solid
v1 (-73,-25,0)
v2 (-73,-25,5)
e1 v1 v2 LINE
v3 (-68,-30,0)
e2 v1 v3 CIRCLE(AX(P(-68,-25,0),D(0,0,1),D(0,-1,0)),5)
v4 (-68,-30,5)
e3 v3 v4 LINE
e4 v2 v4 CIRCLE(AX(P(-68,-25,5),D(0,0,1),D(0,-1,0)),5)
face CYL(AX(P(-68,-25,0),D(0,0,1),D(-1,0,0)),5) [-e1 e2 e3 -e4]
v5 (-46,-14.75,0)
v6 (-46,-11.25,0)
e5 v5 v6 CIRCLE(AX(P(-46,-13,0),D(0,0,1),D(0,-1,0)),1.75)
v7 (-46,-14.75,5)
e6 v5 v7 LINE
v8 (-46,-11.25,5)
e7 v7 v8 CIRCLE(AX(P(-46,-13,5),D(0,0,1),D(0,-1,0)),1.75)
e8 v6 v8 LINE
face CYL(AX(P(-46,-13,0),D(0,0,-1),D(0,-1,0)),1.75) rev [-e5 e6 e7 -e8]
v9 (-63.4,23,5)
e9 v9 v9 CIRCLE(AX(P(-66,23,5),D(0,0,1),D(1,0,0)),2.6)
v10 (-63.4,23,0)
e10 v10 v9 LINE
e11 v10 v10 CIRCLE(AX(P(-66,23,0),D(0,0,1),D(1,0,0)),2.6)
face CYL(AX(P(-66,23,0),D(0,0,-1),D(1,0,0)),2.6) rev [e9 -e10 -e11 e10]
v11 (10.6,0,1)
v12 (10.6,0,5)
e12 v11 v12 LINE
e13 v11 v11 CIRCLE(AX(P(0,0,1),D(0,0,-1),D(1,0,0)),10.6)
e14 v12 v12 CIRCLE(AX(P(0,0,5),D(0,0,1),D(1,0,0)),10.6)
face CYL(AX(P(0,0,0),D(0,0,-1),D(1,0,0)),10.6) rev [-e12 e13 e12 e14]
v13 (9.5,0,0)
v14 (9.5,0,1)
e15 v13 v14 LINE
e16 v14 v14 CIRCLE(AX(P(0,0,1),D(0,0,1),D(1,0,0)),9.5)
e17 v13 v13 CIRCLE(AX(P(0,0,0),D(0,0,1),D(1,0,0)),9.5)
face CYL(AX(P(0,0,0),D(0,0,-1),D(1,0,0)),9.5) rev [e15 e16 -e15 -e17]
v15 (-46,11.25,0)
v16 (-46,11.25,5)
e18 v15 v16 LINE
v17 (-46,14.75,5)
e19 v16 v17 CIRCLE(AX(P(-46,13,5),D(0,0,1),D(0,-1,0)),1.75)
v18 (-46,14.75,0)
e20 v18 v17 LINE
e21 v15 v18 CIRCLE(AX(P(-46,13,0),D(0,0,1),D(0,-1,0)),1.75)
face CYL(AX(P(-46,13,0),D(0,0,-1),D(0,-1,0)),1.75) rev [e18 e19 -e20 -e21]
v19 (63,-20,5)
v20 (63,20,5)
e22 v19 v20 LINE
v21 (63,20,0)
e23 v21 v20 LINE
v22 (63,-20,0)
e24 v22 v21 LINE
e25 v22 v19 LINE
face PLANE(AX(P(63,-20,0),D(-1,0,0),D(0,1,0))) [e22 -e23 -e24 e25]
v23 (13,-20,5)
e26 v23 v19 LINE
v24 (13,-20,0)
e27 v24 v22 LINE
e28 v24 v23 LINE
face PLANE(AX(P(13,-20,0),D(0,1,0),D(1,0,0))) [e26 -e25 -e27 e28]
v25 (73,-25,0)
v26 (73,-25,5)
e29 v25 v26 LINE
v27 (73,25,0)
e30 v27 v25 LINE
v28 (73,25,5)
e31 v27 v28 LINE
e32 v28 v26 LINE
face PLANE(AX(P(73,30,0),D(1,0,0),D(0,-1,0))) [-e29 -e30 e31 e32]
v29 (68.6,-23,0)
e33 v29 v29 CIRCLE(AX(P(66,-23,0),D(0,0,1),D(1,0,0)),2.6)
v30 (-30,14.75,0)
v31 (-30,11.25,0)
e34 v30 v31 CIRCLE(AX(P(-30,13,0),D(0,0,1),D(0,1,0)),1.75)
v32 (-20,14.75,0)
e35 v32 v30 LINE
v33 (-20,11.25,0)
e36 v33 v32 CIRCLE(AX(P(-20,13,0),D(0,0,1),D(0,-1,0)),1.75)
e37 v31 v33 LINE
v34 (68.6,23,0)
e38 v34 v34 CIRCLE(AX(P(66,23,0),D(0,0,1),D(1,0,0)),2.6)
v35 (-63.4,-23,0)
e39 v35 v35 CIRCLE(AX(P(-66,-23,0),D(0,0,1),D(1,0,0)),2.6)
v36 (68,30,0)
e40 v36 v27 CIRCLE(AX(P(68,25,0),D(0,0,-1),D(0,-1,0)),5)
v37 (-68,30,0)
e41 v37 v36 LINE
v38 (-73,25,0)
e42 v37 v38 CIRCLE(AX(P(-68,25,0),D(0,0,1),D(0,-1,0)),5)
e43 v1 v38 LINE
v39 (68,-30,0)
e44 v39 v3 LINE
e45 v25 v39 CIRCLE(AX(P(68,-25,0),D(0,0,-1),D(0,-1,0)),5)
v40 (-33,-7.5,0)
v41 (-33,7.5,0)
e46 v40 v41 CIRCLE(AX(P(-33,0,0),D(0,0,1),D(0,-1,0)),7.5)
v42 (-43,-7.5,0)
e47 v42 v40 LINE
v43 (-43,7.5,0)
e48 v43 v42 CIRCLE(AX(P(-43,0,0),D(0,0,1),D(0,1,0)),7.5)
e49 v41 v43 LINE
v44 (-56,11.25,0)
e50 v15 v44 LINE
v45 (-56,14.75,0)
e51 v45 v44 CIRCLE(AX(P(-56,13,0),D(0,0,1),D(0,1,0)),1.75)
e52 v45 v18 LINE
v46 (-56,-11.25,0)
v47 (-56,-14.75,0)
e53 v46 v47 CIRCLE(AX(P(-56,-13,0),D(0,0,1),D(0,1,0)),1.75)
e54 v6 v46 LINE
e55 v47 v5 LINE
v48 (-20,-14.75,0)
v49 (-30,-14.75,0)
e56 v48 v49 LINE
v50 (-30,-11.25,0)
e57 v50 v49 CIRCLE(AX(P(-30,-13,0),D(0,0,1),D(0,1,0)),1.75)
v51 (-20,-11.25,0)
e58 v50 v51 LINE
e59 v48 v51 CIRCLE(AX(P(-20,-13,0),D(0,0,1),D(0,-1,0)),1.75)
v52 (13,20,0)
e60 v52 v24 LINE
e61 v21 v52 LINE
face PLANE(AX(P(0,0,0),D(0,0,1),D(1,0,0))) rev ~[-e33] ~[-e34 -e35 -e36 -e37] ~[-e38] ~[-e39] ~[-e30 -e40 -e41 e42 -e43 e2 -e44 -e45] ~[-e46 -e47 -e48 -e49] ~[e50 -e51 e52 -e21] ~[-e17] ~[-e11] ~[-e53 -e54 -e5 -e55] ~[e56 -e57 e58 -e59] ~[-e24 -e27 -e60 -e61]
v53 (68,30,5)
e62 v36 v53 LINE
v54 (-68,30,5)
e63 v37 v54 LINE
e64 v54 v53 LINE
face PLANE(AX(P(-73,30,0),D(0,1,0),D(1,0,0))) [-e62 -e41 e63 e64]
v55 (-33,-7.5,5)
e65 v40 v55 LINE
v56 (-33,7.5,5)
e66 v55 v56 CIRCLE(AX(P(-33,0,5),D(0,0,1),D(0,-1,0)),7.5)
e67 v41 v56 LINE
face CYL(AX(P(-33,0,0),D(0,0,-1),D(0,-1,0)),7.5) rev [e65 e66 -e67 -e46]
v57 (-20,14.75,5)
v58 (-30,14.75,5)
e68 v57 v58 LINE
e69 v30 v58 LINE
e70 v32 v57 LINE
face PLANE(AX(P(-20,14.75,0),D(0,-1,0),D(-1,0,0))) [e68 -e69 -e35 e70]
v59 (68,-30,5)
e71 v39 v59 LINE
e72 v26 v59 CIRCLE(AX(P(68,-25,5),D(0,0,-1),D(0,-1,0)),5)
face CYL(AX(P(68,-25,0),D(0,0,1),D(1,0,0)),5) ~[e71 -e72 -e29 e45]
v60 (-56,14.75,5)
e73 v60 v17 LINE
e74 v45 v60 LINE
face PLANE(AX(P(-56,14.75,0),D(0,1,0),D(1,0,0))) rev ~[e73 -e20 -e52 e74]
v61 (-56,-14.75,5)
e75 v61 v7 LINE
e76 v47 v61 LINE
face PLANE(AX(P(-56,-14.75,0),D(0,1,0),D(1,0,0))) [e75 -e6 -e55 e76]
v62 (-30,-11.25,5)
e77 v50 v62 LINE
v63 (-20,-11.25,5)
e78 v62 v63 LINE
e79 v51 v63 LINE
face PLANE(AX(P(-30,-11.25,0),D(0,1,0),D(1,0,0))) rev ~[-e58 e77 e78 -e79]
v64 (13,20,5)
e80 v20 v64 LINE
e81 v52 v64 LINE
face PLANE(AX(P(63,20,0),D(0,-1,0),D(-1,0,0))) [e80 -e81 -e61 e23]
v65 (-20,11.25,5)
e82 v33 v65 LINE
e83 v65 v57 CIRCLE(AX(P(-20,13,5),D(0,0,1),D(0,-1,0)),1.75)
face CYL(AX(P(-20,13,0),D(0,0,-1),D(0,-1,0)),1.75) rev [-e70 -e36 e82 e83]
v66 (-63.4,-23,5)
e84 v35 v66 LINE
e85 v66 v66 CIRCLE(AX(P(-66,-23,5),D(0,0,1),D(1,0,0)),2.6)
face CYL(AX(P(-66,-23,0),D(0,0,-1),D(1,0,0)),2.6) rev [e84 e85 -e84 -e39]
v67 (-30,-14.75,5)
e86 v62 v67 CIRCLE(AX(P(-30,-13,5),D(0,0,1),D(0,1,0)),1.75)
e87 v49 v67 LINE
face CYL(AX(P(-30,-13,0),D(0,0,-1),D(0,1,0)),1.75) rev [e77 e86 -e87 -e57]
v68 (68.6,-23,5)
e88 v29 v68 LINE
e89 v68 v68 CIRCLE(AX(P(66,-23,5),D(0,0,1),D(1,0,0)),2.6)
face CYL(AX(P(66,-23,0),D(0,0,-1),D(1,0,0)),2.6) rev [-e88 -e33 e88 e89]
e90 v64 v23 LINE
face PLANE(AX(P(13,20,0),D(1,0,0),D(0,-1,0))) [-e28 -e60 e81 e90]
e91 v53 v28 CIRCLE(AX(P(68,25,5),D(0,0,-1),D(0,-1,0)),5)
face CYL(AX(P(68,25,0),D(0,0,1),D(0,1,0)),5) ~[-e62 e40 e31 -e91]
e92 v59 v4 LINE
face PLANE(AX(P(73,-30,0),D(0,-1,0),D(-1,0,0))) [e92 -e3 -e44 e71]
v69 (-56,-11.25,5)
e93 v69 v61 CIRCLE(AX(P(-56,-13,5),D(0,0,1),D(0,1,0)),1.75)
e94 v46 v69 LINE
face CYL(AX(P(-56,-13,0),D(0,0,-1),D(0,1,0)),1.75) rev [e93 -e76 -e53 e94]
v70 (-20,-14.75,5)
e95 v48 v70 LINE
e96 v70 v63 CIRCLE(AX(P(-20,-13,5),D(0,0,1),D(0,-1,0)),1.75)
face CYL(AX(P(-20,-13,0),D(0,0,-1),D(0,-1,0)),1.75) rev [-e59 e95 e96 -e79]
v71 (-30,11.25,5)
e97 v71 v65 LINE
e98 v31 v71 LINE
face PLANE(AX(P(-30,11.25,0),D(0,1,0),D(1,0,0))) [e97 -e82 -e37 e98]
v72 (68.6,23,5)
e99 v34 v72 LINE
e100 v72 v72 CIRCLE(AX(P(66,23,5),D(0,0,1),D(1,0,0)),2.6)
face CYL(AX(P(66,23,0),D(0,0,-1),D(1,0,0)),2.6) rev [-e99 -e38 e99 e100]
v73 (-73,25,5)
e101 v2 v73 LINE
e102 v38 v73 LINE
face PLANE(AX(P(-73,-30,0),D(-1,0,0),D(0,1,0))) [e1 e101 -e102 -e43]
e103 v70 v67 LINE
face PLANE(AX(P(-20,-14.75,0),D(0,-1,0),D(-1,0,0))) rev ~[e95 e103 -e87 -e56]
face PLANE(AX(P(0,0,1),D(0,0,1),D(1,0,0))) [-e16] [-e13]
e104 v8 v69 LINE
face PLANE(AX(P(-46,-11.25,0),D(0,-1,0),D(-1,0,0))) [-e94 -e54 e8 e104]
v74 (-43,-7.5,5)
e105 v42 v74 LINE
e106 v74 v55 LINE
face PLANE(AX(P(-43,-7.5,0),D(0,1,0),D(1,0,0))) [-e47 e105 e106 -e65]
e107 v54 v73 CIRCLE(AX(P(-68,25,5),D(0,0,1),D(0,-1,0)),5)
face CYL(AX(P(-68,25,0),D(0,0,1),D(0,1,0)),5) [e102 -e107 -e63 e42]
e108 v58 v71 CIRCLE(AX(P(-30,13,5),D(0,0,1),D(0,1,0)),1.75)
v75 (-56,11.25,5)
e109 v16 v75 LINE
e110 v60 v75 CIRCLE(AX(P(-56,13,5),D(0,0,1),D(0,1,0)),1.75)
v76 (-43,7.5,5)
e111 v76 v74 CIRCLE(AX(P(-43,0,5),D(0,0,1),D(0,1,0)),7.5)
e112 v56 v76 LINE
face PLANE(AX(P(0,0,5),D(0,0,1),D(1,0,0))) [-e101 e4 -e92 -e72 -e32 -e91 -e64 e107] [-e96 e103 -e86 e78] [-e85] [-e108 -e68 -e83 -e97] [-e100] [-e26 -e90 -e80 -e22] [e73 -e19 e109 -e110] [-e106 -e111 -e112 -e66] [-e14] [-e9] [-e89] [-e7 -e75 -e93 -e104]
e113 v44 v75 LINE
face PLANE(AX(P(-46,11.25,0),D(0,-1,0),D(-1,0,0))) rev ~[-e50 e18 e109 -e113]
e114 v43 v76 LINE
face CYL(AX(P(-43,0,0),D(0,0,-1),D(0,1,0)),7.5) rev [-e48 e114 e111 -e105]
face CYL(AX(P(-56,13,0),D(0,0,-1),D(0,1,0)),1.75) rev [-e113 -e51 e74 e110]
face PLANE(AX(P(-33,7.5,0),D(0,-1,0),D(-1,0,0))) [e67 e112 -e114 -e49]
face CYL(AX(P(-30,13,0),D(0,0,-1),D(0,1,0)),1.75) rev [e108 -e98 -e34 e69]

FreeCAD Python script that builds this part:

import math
import FreeCAD as App
import Part
import Sketcher

V = App.Vector


def edges_at(feature, points):
    """Names of the edges that pass closest to the given points."""
    edges = feature.Shape.Edges
    near = lambda p: min(range(len(edges)), key=lambda i: edges[i].distToShape(Part.Vertex(*p))[0])
    return sorted({f"Edge{near(p) + 1}" for p in points})

doc = App.newDocument("Part")
params = doc.addObject("Spreadsheet::Sheet", "Params")
for row, (alias, value) in enumerate([
    ("sketch1_diameter", "5.2 mm"),
    ("sketch1_diameter2", "21.2 mm"),
    ("sketch1_radius", "7.5 mm"),
    ("sketch1_width", "10 mm"),
    ("sketch1_radius2", "1.75 mm"),
    ("pad1_length", "5 mm"),
    ("sketch2_diameter", "22 mm"),
    ("sketch2_diameter2", "19 mm"),
    ("pad2_length", "1 mm"),
    ("fillet_radius", "5 mm"),
], start=1):
    params.set(f"A{row}", alias)
    params.set(f"B{row}", "=" + value)
    params.setAlias(f"B{row}", alias)

body = doc.addObject("PartDesign::Body", "Body")

# Sketch on XY plane
sketch1 = doc.addObject("Sketcher::SketchObject", "Sketch")
body.addObject(sketch1)
sketch1.AttachmentSupport = (doc.XY_Plane, [""])
sketch1.MapMode = "FlatFace"
sketch1.addGeometry([
    Part.LineSegment(V(73, 30, 0), V(-73, 30, 0)),  # 0
    Part.LineSegment(V(-73, 30, 0), V(-73, -30, 0)),  # 1
    Part.LineSegment(V(-73, -30, 0), V(73, -30, 0)),  # 2
    Part.LineSegment(V(73, -30, 0), V(73, 30, 0)),  # 3
    Part.Circle(V(-66, -23, 0), V(0, 0, 1), 2.6),  # 4
    Part.LineSegment(V(-46, -14.8, 0), V(-56, -14.8, 0)),  # 5
    Part.ArcOfCircle(Part.Circle(V(-56, -13, 0), V(0, 0, 1), 1.8), math.radians(90), math.radians(270)),  # 6
    Part.LineSegment(V(-56, -11.2, 0), V(-46, -11.2, 0)),  # 7
    Part.ArcOfCircle(Part.Circle(V(-46, -13, 0), V(0, 0, 1), 1.8), math.radians(-90), math.radians(90)),  # 8
    Part.ArcOfCircle(Part.Circle(V(-20, -13, 0), V(0, 0, 1), 1.8), math.radians(-90), math.radians(90)),  # 9
    Part.LineSegment(V(-20, -14.8, 0), V(-30, -14.8, 0)),  # 10
    Part.ArcOfCircle(Part.Circle(V(-30, -13, 0), V(0, 0, 1), 1.8), math.radians(90), math.radians(270)),  # 11
    Part.LineSegment(V(-30, -11.2, 0), V(-20, -11.2, 0)),  # 12
    Part.Circle(V(66, -23, 0), V(0, 0, 1), 2.6),  # 13
    Part.LineSegment(V(-43, 7.5, 0), V(-33, 7.5, 0)),  # 14
    Part.ArcOfCircle(Part.Circle(V(-33, 0, 0), V(0, 0, 1), 7.5), math.radians(-90), math.radians(90)),  # 15
    Part.LineSegment(V(-33, -7.5, 0), V(-43, -7.5, 0)),  # 16
    Part.ArcOfCircle(Part.Circle(V(-43, 0, 0), V(0, 0, 1), 7.5), math.radians(90), math.radians(270)),  # 17
    Part.ArcOfCircle(Part.Circle(V(-56, 13, 0), V(0, 0, 1), 1.8), math.radians(90), math.radians(270)),  # 18
    Part.LineSegment(V(-56, 14.8, 0), V(-46, 14.8, 0)),  # 19
    Part.ArcOfCircle(Part.Circle(V(-46, 13, 0), V(0, 0, 1), 1.8), math.radians(-90), math.radians(90)),  # 20
    Part.LineSegment(V(-46, 11.2, 0), V(-56, 11.2, 0)),  # 21
    Part.LineSegment(V(-30, 14.8, 0), V(-20, 14.8, 0)),  # 22
    Part.ArcOfCircle(Part.Circle(V(-20, 13, 0), V(0, 0, 1), 1.8), math.radians(-90), math.radians(90)),  # 23
    Part.LineSegment(V(-20, 11.2, 0), V(-30, 11.2, 0)),  # 24
    Part.ArcOfCircle(Part.Circle(V(-30, 13, 0), V(0, 0, 1), 1.8), math.radians(90), math.radians(270)),  # 25
    Part.Circle(V(-66, 23, 0), V(0, 0, 1), 2.6),  # 26
    Part.Circle(V(0, 0, 0), V(0, 0, 1), 10.6),  # 27
    Part.LineSegment(V(13, 20, 0), V(63, 20, 0)),  # 28
    Part.LineSegment(V(63, 20, 0), V(63, -20, 0)),  # 29
    Part.LineSegment(V(63, -20, 0), V(13, -20, 0)),  # 30
    Part.LineSegment(V(13, -20, 0), V(13, 20, 0)),  # 31
    Part.Circle(V(66, 23, 0), V(0, 0, 1), 2.6),  # 32
], False)
sketch1.addConstraint([
    Sketcher.Constraint("Coincident", 0, 2, 1, 1),
    Sketcher.Constraint("Coincident", 1, 2, 2, 1),
    Sketcher.Constraint("Coincident", 2, 2, 3, 1),
    Sketcher.Constraint("Coincident", 3, 2, 0, 1),
    Sketcher.Constraint("Tangent", 5, 2, 6, 2),
    Sketcher.Constraint("Tangent", 6, 1, 7, 1),
    Sketcher.Constraint("Tangent", 7, 2, 8, 2),
    Sketcher.Constraint("Tangent", 8, 1, 5, 1),
    Sketcher.Constraint("Tangent", 9, 1, 10, 1),
    Sketcher.Constraint("Tangent", 10, 2, 11, 2),
    Sketcher.Constraint("Tangent", 11, 1, 12, 1),
    Sketcher.Constraint("Tangent", 12, 2, 9, 2),
    Sketcher.Constraint("Tangent", 14, 2, 15, 2),
    Sketcher.Constraint("Tangent", 15, 1, 16, 1),
    Sketcher.Constraint("Tangent", 16, 2, 17, 2),
    Sketcher.Constraint("Tangent", 17, 1, 14, 1),
    Sketcher.Constraint("Tangent", 18, 1, 19, 1),
    Sketcher.Constraint("Tangent", 19, 2, 20, 2),
    Sketcher.Constraint("Tangent", 20, 1, 21, 1),
    Sketcher.Constraint("Tangent", 21, 2, 18, 2),
    Sketcher.Constraint("Tangent", 22, 2, 23, 2),
    Sketcher.Constraint("Tangent", 23, 1, 24, 1),
    Sketcher.Constraint("Tangent", 24, 2, 25, 2),
    Sketcher.Constraint("Tangent", 25, 1, 22, 1),
    Sketcher.Constraint("Coincident", 28, 2, 29, 1),
    Sketcher.Constraint("Coincident", 29, 2, 30, 1),
    Sketcher.Constraint("Coincident", 30, 2, 31, 1),
    Sketcher.Constraint("Coincident", 31, 2, 28, 1),
    Sketcher.Constraint("Horizontal", 0),
    Sketcher.Constraint("Vertical", 1),
    Sketcher.Constraint("Horizontal", 2),
    Sketcher.Constraint("Vertical", 3),
    Sketcher.Constraint("Horizontal", 5),
    Sketcher.Constraint("Horizontal", 7),
    Sketcher.Constraint("Horizontal", 10),
    Sketcher.Constraint("Horizontal", 12),
    Sketcher.Constraint("Horizontal", 14),
    Sketcher.Constraint("Horizontal", 16),
    Sketcher.Constraint("Horizontal", 19),
    Sketcher.Constraint("Horizontal", 21),
    Sketcher.Constraint("Horizontal", 22),
    Sketcher.Constraint("Horizontal", 24),
    Sketcher.Constraint("Horizontal", 28),
    Sketcher.Constraint("Vertical", 29),
    Sketcher.Constraint("Horizontal", 30),
    Sketcher.Constraint("Vertical", 31),
    Sketcher.Constraint("Coincident", 27, 3, -1, 1),
    Sketcher.Constraint("Equal", 8, 9),
    Sketcher.Constraint("Equal", 4, 13),
    Sketcher.Constraint("Equal", 11, 18),
    Sketcher.Constraint("Equal", 20, 23),
    Sketcher.Constraint("Equal", 13, 26),
    Sketcher.Constraint("Equal", 26, 32),
    Sketcher.Constraint("Symmetric", 13, 3, 26, 3, -1, 1),
    Sketcher.Constraint("Symmetric", 4, 3, 32, 3, -1, 1),
    Sketcher.Constraint("Symmetric", 0, 2, 2, 2, -1, 1),
    Sketcher.Constraint("Symmetric", 4, 3, 13, 3, -2),
    Sketcher.Constraint("Symmetric", 6, 3, 18, 3, -1),
    Sketcher.Constraint("Symmetric", 9, 3, 23, 3, -1),
    Sketcher.Constraint("PointOnObject", 15, 3, -1),
    Sketcher.Constraint("Horizontal", 8, 3, 9, 3),
    Sketcher.Constraint("Vertical", 8, 3, 20, 3),
    Sketcher.Constraint("Vertical", 11, 3, 25, 3),
    Sketcher.Constraint("Equal", 7, 10),
    Sketcher.Constraint("Equal", 12, 14),
    Sketcher.Constraint("Diameter", 4, 5.2),
    Sketcher.Constraint("Diameter", 27, 21.2),
    Sketcher.Constraint("Radius", 15, 7.5),
    Sketcher.Constraint("DistanceX", 5, 2, 5, 1, 10.0),
    Sketcher.Constraint("Radius", 6, 1.75),
    Sketcher.Constraint("DistanceX", 9, 3, -1, 1, 20.0),
    Sketcher.Constraint("DistanceY", -1, 1, 28, 2, 20.0),
    Sketcher.Constraint("DistanceY", 29, 2, -1, 1, 20.0),
    Sketcher.Constraint("DistanceX", 4, 3, 6, 3, 10.0),
    Sketcher.Constraint("DistanceY", 4, 3, 6, 3, 10.0),
    Sketcher.Constraint("DistanceX", 8, 3, 9, 3, 26.0),
    Sketcher.Constraint("DistanceY", 6, 3, 18, 3, 26.0),
    Sketcher.Constraint("DistanceX", 0, 2, 26, 3, 7.0),
    Sketcher.Constraint("DistanceY", 26, 3, 0, 2, 7.0),
    Sketcher.Constraint("DistanceX", 28, 2, 3, 2, 10.0),
    Sketcher.Constraint("DistanceX", 28, 1, 28, 2, 50.0),
    Sketcher.Constraint("DistanceX", 15, 3, -1, 1, 33.0),
])
sketch1.setExpression("Constraints[65]", "Params.sketch1_diameter")
sketch1.setExpression("Constraints[66]", "Params.sketch1_diameter2")
sketch1.setExpression("Constraints[67]", "Params.sketch1_radius")
sketch1.setExpression("Constraints[68]", "Params.sketch1_width")
sketch1.setExpression("Constraints[69]", "Params.sketch1_radius2")
pad1 = doc.addObject("PartDesign::Pad", "Pad")
body.addObject(pad1)
pad1.Profile = sketch1
pad1.setExpression("Length", "Params.pad1_length")

# Sketch on XY plane
sketch2 = doc.addObject("Sketcher::SketchObject", "Sketch001")
body.addObject(sketch2)
sketch2.AttachmentSupport = (doc.XY_Plane, [""])
sketch2.MapMode = "FlatFace"
sketch2.addGeometry([
    Part.Circle(V(0, 0, 0), V(0, 0, 1), 11),
    Part.Circle(V(0, 0, 0), V(0, 0, 1), 10),
], False)
sketch2.addConstraint([
    Sketcher.Constraint("Coincident", 0, 3, -1, 1),
    Sketcher.Constraint("Coincident", 1, 3, -1, 1),
    Sketcher.Constraint("Diameter", 0, 22.0),
    Sketcher.Constraint("Diameter", 1, 19.0),
])
sketch2.setExpression("Constraints[2]", "Params.sketch2_diameter")
sketch2.setExpression("Constraints[3]", "Params.sketch2_diameter2")
pad2 = doc.addObject("PartDesign::Pad", "Pad001")
body.addObject(pad2)
pad2.Profile = sketch2
pad2.setExpression("Length", "Params.pad2_length")
doc.recompute()

fillet = doc.addObject("PartDesign::Fillet", "Fillet")
body.addObject(fillet)
fillet.Base = (pad2, edges_at(pad2, [
    (-73, 30, 2.5),
    (-73, -30, 2.5),
    (73, 30, 2.5),
    (73, -30, 2.5),
]))
fillet.setExpression("Radius", "Params.fillet_radius")

doc.recompute()
